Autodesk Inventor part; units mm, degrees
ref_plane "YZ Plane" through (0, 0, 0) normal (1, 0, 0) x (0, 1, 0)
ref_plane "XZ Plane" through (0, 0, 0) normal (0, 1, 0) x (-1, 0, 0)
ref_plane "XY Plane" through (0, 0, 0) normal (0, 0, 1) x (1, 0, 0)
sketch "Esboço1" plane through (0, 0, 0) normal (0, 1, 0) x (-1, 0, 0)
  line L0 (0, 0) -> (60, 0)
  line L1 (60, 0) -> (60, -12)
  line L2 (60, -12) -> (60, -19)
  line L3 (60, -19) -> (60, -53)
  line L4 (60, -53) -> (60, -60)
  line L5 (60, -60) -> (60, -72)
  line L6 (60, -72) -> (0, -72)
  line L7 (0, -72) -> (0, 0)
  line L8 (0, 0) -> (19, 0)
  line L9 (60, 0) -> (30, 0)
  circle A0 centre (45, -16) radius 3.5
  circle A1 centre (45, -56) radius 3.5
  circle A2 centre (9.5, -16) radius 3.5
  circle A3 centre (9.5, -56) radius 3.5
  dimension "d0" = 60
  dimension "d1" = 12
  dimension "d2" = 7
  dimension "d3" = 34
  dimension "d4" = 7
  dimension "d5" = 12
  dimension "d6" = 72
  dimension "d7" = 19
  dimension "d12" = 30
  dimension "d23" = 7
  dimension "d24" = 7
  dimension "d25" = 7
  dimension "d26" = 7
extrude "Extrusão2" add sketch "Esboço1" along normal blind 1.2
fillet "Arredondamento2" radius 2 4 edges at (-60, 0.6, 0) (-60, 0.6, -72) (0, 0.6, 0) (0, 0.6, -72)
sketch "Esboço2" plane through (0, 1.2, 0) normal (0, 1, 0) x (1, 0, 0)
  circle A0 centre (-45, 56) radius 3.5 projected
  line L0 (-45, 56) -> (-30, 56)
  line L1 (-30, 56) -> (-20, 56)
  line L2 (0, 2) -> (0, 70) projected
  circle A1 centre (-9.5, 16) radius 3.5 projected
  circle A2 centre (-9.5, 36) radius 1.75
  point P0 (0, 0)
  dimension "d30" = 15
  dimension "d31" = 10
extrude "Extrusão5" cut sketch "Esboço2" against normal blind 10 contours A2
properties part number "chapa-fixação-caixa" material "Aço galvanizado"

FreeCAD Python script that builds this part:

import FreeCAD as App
import Part
import Sketcher

V = App.Vector


def edges_at(feature, points):
    """Names of the edges that pass closest to the given points."""
    edges = feature.Shape.Edges
    near = lambda p: min(range(len(edges)), key=lambda i: edges[i].distToShape(Part.Vertex(*p))[0])
    return sorted({f"Edge{near(p) + 1}" for p in points})


def add_polygon(sketch, points):
    """Adds a closed chain of lines whose ends are joined by coincident constraints."""
    first, n = sketch.GeometryCount, len(points)
    for a, b in zip(points, points[1:] + points[:1]):
        sketch.addGeometry(Part.LineSegment(App.Vector(*a, 0), App.Vector(*b, 0)), False)
    for i in range(n):
        sketch.addConstraint(Sketcher.Constraint("Coincident", first + i, 2, first + (i + 1) % n, 1))

doc = App.newDocument("Part")
params = doc.addObject("Spreadsheet::Sheet", "Params")
for row, (alias, value) in enumerate([
    ("sketch1_diameter", "7 mm"),
    ("sketch1_width", "60 mm"),
    ("sketch1_height", "72 mm"),
    ("pad1_length", "1.2 mm"),
    ("fillet_radius", "2 mm"),
    ("sketch2_diameter", "3.5 mm"),
    ("pocket1_length", "10 mm"),
], start=1):
    params.set(f"A{row}", alias)
    params.set(f"B{row}", "=" + value)
    params.setAlias(f"B{row}", alias)

body = doc.addObject("PartDesign::Body", "Body")

# Sketch on XZ plane
sketch1 = body.newObject("Sketcher::SketchObject", "Sketch")
sketch1.AttachmentSupport = (doc.getObject("XZ_Plane"), [""])
sketch1.MapMode = "FlatFace"
add_polygon(sketch1, [(-60, 0), (0, 0), (0, -72), (-60, -72)])  # lines 0-3
sketch1.addGeometry(Part.Circle(V(-9.5, -56, 0), V(0, 0, 1), 3.5), False)  # 4
sketch1.addGeometry(Part.Circle(V(-45, -56, 0), V(0, 0, 1), 3.5), False)  # 5
sketch1.addGeometry(Part.Circle(V(-9.5, -16, 0), V(0, 0, 1), 3.5), False)  # 6
sketch1.addGeometry(Part.Circle(V(-45, -16, 0), V(0, 0, 1), 3.5), False)  # 7
sketch1.addConstraint(Sketcher.Constraint("Horizontal", 0))
sketch1.addConstraint(Sketcher.Constraint("Vertical", 1))
sketch1.addConstraint(Sketcher.Constraint("Horizontal", 2))
sketch1.addConstraint(Sketcher.Constraint("Vertical", 3))
sketch1.addConstraint(Sketcher.Constraint("Coincident", 0, 2, -1, 1))
sketch1.addConstraint(Sketcher.Constraint("Equal", 4, 5))
sketch1.addConstraint(Sketcher.Constraint("Equal", 5, 6))
sketch1.addConstraint(Sketcher.Constraint("Equal", 6, 7))
sketch1.addConstraint(Sketcher.Constraint("Horizontal", 4, 3, 5, 3))
sketch1.addConstraint(Sketcher.Constraint("Horizontal", 6, 3, 7, 3))
sketch1.addConstraint(Sketcher.Constraint("Vertical", 4, 3, 6, 3))
sketch1.addConstraint(Sketcher.Constraint("Vertical", 5, 3, 7, 3))
sketch1.addConstraint(Sketcher.Constraint("Diameter", 4, 7.0))
sketch1.addConstraint(Sketcher.Constraint("DistanceX", 0, 1, 0, 2, 60.0))
sketch1.addConstraint(Sketcher.Constraint("DistanceY", 1, 2, 1, 1, 72.0))
sketch1.addConstraint(Sketcher.Constraint("DistanceY", 4, 3, -1, 1, 56.0))
sketch1.addConstraint(Sketcher.Constraint("DistanceX", 5, 3, -1, 1, 45.0))
sketch1.addConstraint(Sketcher.Constraint("DistanceY", 6, 3, -1, 1, 16.0))
sketch1.addConstraint(Sketcher.Constraint("DistanceX", 4, 3, -1, 1, 9.5))
sketch1.setExpression("Constraints[16]", "Params.sketch1_diameter")
sketch1.setExpression("Constraints[17]", "Params.sketch1_width")
sketch1.setExpression("Constraints[18]", "Params.sketch1_height")
pad1 = body.newObject("PartDesign::Pad", "Pad")
pad1.Profile = sketch1
pad1.setExpression("Length", "Params.pad1_length")
pad1.Reversed = True
doc.recompute()

fillet = body.newObject("PartDesign::Fillet", "Fillet")
fillet.Base = (pad1, edges_at(pad1, [
    (-60, 0.6, 0),
    (-60, 0.6, -72),
    (0, 0.6, 0),
    (0, 0.6, -72),
]))
fillet.setExpression("Radius", "Params.fillet_radius")

# Sketch on XZ plane
sketch2 = body.newObject("Sketcher::SketchObject", "Sketch001")
sketch2.AttachmentSupport = (doc.getObject("XZ_Plane"), [""])
sketch2.MapMode = "FlatFace"
sketch2.AttachmentOffset = App.Placement(V(0, 0, -1.2), App.Rotation())
sketch2.addGeometry(Part.Circle(V(-9.5, -36, 0), V(0, 0, 1), 1.8), False)
sketch2.addConstraint(Sketcher.Constraint("Diameter", 0, 3.5))
sketch2.addConstraint(Sketcher.Constraint("DistanceY", 0, 3, -1, 1, 36.0))
sketch2.addConstraint(Sketcher.Constraint("DistanceX", 0, 3, -1, 1, 9.5))
sketch2.setExpression("Constraints[0]", "Params.sketch2_diameter")
pocket1 = body.newObject("PartDesign::Pocket", "Pocket")
pocket1.Profile = sketch2
pocket1.setExpression("Length", "Params.pocket1_length")
pocket1.Reversed = True

doc.recompute()
